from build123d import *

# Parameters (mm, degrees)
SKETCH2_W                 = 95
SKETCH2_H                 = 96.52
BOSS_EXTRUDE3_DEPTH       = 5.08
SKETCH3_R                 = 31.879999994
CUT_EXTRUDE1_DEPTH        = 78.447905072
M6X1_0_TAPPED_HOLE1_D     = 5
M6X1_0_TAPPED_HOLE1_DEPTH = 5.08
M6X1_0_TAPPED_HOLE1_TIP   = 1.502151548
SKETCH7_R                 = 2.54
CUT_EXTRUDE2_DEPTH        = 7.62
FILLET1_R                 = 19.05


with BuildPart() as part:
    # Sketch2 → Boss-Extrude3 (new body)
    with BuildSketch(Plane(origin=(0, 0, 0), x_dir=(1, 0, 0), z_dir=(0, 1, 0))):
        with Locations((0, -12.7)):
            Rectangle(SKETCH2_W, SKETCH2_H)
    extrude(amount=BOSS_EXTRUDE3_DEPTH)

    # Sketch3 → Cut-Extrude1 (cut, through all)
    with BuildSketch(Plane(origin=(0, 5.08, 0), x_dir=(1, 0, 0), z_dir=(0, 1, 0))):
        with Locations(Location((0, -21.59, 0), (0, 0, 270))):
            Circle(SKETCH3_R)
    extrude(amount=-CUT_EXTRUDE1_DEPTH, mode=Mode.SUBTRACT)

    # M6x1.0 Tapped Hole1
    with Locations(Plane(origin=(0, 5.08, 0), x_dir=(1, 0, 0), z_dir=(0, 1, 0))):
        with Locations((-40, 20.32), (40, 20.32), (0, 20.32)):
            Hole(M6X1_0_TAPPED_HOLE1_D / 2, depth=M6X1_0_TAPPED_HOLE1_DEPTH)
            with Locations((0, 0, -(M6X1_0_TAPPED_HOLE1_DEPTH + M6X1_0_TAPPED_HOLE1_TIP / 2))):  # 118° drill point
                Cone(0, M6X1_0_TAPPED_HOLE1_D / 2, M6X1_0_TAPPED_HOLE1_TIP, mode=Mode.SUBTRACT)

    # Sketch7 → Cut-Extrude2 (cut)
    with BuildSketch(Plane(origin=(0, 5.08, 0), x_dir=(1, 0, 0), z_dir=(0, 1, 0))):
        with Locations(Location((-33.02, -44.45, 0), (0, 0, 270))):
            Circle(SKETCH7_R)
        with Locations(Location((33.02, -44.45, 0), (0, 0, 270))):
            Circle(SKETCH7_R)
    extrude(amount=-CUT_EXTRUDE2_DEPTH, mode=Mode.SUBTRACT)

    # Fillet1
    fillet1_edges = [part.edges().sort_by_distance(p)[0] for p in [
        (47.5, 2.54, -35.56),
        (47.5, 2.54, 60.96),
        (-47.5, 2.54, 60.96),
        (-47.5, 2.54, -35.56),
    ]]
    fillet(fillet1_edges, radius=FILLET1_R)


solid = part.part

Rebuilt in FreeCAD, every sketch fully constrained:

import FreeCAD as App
import Part
import Sketcher
Q = App.Units.Quantity


def edges_at(feature, points):
    """Names of the edges that pass closest to the given points."""
    edges = feature.Shape.Edges
    near = lambda p: min(range(len(edges)), key=lambda i: edges[i].distToShape(Part.Vertex(*p))[0])
    return sorted({f"Edge{near(p) + 1}" for p in points})


def add_polygon(sketch, points):
    """Adds a closed chain of lines whose ends are joined by coincident constraints."""
    first, n = sketch.GeometryCount, len(points)
    for a, b in zip(points, points[1:] + points[:1]):
        sketch.addGeometry(Part.LineSegment(App.Vector(*a, 0), App.Vector(*b, 0)), False)
    for i in range(n):
        sketch.addConstraint(Sketcher.Constraint("Coincident", first + i, 2, first + (i + 1) % n, 1))

doc = App.newDocument("Part")
params = doc.addObject("Spreadsheet::Sheet", "Params")
for row, (alias, value) in enumerate([
    ("sketch1_height", "3.8 in"),
    ("pad1_length", "0.2 in"),
    ("hole_diameter", "5 mm"),
    ("hole_depth", "0.2 in"),
    ("sketch4_diameter", "0.2 in"),
    ("pocket2_length", "0.3 in"),
    ("fillet_radius", "0.75 in"),
], start=1):
    params.set(f"A{row}", alias)
    params.set(f"B{row}", "=" + value)
    params.setAlias(f"B{row}", alias)

body = doc.addObject("PartDesign::Body", "Body")

# Sketch on XZ plane
sketch1 = body.newObject("Sketcher::SketchObject", "Sketch")
sketch1.AttachmentSupport = (doc.getObject("XZ_Plane"), [""])
sketch1.MapMode = "FlatFace"
add_polygon(sketch1, [(-48, -36), (-48, 61), (48, 61), (48, -36)])  # lines 0-3
sketch1.addConstraint(Sketcher.Constraint("Vertical", 0))
sketch1.addConstraint(Sketcher.Constraint("Horizontal", 1))
sketch1.addConstraint(Sketcher.Constraint("Vertical", 2))
sketch1.addConstraint(Sketcher.Constraint("Horizontal", 3))
sketch1.addConstraint(Sketcher.Constraint("DistanceY", 0, 1, 0, 2, Q("3.8 in")))
sketch1.addConstraint(Sketcher.Constraint("DistanceY", -1, 1, 0, 2, Q("2.4 in")))
sketch1.addConstraint(Sketcher.Constraint("DistanceX", 1, 1, 1, 2, 95.0))
sketch1.addConstraint(Sketcher.Constraint("DistanceX", 0, 2, -1, 1, 47.5))
sketch1.setExpression("Constraints[8]", "Params.sketch1_height")
pad1 = body.newObject("PartDesign::Pad", "Pad")
pad1.Profile = sketch1
pad1.setExpression("Length", "Params.pad1_length")
pad1.Reversed = True

# Sketch on XZ plane
sketch2 = body.newObject("Sketcher::SketchObject", "Sketch001")
sketch2.AttachmentSupport = (doc.getObject("XZ_Plane"), [""])
sketch2.MapMode = "FlatFace"
sketch2.AttachmentOffset = App.Placement(App.Vector(0, 0, -0.2 * 25.4), App.Rotation())
sketch2.addGeometry(Part.Circle(App.Vector(0, 22, 0), App.Vector(0, 0, 1), 32), False)
sketch2.addConstraint(Sketcher.Constraint("PointOnObject", 0, 3, -2))
sketch2.addConstraint(Sketcher.Constraint("Diameter", 0, 63.76))
sketch2.addConstraint(Sketcher.Constraint("DistanceY", -1, 1, 0, 3, Q("0.85 in")))
pocket1 = body.newObject("PartDesign::Pocket", "Pocket")
pocket1.Profile = sketch2
pocket1.Type = "ThroughAll"
pocket1.Reversed = True

# Sketch on XZ plane
sketch3 = body.newObject("Sketcher::SketchObject", "Sketch002")
sketch3.AttachmentSupport = (doc.getObject("XZ_Plane"), [""])
sketch3.MapMode = "FlatFace"
sketch3.AttachmentOffset = App.Placement(App.Vector(0, 0, -0.2 * 25.4), App.Rotation())
sketch3.addGeometry(Part.Circle(App.Vector(-40, -20.3, 0), App.Vector(0, 0, 1), 2.5), False)
sketch3.addGeometry(Part.Circle(App.Vector(40, -20.3, 0), App.Vector(0, 0, 1), 2.5), False)
sketch3.addGeometry(Part.Circle(App.Vector(0, -20.3, 0), App.Vector(0, 0, 1), 2.5), False)
sketch3.addConstraint(Sketcher.Constraint("Equal", 0, 1))
sketch3.addConstraint(Sketcher.Constraint("Equal", 1, 2))
sketch3.addConstraint(Sketcher.Constraint("Symmetric", 0, 3, 1, 3, -2))
sketch3.addConstraint(Sketcher.Constraint("PointOnObject", 2, 3, -2))
sketch3.addConstraint(Sketcher.Constraint("Horizontal", 1, 3, 2, 3))
sketch3.addConstraint(Sketcher.Constraint("DistanceY", 0, 3, -1, 1, Q("0.8 in")))
sketch3.addConstraint(Sketcher.Constraint("Diameter", 0, 5.0))
sketch3.addConstraint(Sketcher.Constraint("DistanceX", 0, 3, -1, 1, 40.0))
doc.recompute()
hole = body.newObject("PartDesign::Hole", "Hole")
hole.Profile = sketch3
hole.ThreadType = "None"
hole.setExpression("Diameter", "Params.hole_diameter")
hole.DepthType = "Dimension"
hole.setExpression("Depth", "Params.hole_depth")
hole.DrillPoint = "Angled"
hole.DrillPointAngle = 118
hole.Reversed = True

# Sketch on XZ plane
sketch4 = body.newObject("Sketcher::SketchObject", "Sketch003")
sketch4.AttachmentSupport = (doc.getObject("XZ_Plane"), [""])
sketch4.MapMode = "FlatFace"
sketch4.AttachmentOffset = App.Placement(App.Vector(0, 0, -0.2 * 25.4), App.Rotation())
sketch4.addGeometry(Part.Circle(App.Vector(-33, 44.5, 0), App.Vector(0, 0, 1), 2.5), False)
sketch4.addGeometry(Part.Circle(App.Vector(33, 44.5, 0), App.Vector(0, 0, 1), 2.5), False)
sketch4.addConstraint(Sketcher.Constraint("Equal", 0, 1))
sketch4.addConstraint(Sketcher.Constraint("Symmetric", 0, 3, 1, 3, -2))
sketch4.addConstraint(Sketcher.Constraint("Diameter", 0, Q("0.2 in")))
sketch4.addConstraint(Sketcher.Constraint("DistanceX", 0, 3, -1, 1, Q("1.3 in")))
sketch4.addConstraint(Sketcher.Constraint("DistanceY", -1, 1, 0, 3, Q("1.75 in")))
sketch4.setExpression("Constraints[2]", "Params.sketch4_diameter")
pocket2 = body.newObject("PartDesign::Pocket", "Pocket001")
pocket2.Profile = sketch4
pocket2.setExpression("Length", "Params.pocket2_length")
pocket2.Reversed = True
doc.recompute()

fillet = body.newObject("PartDesign::Fillet", "Fillet")
fillet.Base = (pocket2, edges_at(pocket2, [
    (47.5, 2.54, -35.56),
    (47.5, 2.54, 60.96),
    (-47.5, 2.54, 60.96),
    (-47.5, 2.54, -35.56),
]))
fillet.setExpression("Radius", "Params.fillet_radius")

doc.recompute()
